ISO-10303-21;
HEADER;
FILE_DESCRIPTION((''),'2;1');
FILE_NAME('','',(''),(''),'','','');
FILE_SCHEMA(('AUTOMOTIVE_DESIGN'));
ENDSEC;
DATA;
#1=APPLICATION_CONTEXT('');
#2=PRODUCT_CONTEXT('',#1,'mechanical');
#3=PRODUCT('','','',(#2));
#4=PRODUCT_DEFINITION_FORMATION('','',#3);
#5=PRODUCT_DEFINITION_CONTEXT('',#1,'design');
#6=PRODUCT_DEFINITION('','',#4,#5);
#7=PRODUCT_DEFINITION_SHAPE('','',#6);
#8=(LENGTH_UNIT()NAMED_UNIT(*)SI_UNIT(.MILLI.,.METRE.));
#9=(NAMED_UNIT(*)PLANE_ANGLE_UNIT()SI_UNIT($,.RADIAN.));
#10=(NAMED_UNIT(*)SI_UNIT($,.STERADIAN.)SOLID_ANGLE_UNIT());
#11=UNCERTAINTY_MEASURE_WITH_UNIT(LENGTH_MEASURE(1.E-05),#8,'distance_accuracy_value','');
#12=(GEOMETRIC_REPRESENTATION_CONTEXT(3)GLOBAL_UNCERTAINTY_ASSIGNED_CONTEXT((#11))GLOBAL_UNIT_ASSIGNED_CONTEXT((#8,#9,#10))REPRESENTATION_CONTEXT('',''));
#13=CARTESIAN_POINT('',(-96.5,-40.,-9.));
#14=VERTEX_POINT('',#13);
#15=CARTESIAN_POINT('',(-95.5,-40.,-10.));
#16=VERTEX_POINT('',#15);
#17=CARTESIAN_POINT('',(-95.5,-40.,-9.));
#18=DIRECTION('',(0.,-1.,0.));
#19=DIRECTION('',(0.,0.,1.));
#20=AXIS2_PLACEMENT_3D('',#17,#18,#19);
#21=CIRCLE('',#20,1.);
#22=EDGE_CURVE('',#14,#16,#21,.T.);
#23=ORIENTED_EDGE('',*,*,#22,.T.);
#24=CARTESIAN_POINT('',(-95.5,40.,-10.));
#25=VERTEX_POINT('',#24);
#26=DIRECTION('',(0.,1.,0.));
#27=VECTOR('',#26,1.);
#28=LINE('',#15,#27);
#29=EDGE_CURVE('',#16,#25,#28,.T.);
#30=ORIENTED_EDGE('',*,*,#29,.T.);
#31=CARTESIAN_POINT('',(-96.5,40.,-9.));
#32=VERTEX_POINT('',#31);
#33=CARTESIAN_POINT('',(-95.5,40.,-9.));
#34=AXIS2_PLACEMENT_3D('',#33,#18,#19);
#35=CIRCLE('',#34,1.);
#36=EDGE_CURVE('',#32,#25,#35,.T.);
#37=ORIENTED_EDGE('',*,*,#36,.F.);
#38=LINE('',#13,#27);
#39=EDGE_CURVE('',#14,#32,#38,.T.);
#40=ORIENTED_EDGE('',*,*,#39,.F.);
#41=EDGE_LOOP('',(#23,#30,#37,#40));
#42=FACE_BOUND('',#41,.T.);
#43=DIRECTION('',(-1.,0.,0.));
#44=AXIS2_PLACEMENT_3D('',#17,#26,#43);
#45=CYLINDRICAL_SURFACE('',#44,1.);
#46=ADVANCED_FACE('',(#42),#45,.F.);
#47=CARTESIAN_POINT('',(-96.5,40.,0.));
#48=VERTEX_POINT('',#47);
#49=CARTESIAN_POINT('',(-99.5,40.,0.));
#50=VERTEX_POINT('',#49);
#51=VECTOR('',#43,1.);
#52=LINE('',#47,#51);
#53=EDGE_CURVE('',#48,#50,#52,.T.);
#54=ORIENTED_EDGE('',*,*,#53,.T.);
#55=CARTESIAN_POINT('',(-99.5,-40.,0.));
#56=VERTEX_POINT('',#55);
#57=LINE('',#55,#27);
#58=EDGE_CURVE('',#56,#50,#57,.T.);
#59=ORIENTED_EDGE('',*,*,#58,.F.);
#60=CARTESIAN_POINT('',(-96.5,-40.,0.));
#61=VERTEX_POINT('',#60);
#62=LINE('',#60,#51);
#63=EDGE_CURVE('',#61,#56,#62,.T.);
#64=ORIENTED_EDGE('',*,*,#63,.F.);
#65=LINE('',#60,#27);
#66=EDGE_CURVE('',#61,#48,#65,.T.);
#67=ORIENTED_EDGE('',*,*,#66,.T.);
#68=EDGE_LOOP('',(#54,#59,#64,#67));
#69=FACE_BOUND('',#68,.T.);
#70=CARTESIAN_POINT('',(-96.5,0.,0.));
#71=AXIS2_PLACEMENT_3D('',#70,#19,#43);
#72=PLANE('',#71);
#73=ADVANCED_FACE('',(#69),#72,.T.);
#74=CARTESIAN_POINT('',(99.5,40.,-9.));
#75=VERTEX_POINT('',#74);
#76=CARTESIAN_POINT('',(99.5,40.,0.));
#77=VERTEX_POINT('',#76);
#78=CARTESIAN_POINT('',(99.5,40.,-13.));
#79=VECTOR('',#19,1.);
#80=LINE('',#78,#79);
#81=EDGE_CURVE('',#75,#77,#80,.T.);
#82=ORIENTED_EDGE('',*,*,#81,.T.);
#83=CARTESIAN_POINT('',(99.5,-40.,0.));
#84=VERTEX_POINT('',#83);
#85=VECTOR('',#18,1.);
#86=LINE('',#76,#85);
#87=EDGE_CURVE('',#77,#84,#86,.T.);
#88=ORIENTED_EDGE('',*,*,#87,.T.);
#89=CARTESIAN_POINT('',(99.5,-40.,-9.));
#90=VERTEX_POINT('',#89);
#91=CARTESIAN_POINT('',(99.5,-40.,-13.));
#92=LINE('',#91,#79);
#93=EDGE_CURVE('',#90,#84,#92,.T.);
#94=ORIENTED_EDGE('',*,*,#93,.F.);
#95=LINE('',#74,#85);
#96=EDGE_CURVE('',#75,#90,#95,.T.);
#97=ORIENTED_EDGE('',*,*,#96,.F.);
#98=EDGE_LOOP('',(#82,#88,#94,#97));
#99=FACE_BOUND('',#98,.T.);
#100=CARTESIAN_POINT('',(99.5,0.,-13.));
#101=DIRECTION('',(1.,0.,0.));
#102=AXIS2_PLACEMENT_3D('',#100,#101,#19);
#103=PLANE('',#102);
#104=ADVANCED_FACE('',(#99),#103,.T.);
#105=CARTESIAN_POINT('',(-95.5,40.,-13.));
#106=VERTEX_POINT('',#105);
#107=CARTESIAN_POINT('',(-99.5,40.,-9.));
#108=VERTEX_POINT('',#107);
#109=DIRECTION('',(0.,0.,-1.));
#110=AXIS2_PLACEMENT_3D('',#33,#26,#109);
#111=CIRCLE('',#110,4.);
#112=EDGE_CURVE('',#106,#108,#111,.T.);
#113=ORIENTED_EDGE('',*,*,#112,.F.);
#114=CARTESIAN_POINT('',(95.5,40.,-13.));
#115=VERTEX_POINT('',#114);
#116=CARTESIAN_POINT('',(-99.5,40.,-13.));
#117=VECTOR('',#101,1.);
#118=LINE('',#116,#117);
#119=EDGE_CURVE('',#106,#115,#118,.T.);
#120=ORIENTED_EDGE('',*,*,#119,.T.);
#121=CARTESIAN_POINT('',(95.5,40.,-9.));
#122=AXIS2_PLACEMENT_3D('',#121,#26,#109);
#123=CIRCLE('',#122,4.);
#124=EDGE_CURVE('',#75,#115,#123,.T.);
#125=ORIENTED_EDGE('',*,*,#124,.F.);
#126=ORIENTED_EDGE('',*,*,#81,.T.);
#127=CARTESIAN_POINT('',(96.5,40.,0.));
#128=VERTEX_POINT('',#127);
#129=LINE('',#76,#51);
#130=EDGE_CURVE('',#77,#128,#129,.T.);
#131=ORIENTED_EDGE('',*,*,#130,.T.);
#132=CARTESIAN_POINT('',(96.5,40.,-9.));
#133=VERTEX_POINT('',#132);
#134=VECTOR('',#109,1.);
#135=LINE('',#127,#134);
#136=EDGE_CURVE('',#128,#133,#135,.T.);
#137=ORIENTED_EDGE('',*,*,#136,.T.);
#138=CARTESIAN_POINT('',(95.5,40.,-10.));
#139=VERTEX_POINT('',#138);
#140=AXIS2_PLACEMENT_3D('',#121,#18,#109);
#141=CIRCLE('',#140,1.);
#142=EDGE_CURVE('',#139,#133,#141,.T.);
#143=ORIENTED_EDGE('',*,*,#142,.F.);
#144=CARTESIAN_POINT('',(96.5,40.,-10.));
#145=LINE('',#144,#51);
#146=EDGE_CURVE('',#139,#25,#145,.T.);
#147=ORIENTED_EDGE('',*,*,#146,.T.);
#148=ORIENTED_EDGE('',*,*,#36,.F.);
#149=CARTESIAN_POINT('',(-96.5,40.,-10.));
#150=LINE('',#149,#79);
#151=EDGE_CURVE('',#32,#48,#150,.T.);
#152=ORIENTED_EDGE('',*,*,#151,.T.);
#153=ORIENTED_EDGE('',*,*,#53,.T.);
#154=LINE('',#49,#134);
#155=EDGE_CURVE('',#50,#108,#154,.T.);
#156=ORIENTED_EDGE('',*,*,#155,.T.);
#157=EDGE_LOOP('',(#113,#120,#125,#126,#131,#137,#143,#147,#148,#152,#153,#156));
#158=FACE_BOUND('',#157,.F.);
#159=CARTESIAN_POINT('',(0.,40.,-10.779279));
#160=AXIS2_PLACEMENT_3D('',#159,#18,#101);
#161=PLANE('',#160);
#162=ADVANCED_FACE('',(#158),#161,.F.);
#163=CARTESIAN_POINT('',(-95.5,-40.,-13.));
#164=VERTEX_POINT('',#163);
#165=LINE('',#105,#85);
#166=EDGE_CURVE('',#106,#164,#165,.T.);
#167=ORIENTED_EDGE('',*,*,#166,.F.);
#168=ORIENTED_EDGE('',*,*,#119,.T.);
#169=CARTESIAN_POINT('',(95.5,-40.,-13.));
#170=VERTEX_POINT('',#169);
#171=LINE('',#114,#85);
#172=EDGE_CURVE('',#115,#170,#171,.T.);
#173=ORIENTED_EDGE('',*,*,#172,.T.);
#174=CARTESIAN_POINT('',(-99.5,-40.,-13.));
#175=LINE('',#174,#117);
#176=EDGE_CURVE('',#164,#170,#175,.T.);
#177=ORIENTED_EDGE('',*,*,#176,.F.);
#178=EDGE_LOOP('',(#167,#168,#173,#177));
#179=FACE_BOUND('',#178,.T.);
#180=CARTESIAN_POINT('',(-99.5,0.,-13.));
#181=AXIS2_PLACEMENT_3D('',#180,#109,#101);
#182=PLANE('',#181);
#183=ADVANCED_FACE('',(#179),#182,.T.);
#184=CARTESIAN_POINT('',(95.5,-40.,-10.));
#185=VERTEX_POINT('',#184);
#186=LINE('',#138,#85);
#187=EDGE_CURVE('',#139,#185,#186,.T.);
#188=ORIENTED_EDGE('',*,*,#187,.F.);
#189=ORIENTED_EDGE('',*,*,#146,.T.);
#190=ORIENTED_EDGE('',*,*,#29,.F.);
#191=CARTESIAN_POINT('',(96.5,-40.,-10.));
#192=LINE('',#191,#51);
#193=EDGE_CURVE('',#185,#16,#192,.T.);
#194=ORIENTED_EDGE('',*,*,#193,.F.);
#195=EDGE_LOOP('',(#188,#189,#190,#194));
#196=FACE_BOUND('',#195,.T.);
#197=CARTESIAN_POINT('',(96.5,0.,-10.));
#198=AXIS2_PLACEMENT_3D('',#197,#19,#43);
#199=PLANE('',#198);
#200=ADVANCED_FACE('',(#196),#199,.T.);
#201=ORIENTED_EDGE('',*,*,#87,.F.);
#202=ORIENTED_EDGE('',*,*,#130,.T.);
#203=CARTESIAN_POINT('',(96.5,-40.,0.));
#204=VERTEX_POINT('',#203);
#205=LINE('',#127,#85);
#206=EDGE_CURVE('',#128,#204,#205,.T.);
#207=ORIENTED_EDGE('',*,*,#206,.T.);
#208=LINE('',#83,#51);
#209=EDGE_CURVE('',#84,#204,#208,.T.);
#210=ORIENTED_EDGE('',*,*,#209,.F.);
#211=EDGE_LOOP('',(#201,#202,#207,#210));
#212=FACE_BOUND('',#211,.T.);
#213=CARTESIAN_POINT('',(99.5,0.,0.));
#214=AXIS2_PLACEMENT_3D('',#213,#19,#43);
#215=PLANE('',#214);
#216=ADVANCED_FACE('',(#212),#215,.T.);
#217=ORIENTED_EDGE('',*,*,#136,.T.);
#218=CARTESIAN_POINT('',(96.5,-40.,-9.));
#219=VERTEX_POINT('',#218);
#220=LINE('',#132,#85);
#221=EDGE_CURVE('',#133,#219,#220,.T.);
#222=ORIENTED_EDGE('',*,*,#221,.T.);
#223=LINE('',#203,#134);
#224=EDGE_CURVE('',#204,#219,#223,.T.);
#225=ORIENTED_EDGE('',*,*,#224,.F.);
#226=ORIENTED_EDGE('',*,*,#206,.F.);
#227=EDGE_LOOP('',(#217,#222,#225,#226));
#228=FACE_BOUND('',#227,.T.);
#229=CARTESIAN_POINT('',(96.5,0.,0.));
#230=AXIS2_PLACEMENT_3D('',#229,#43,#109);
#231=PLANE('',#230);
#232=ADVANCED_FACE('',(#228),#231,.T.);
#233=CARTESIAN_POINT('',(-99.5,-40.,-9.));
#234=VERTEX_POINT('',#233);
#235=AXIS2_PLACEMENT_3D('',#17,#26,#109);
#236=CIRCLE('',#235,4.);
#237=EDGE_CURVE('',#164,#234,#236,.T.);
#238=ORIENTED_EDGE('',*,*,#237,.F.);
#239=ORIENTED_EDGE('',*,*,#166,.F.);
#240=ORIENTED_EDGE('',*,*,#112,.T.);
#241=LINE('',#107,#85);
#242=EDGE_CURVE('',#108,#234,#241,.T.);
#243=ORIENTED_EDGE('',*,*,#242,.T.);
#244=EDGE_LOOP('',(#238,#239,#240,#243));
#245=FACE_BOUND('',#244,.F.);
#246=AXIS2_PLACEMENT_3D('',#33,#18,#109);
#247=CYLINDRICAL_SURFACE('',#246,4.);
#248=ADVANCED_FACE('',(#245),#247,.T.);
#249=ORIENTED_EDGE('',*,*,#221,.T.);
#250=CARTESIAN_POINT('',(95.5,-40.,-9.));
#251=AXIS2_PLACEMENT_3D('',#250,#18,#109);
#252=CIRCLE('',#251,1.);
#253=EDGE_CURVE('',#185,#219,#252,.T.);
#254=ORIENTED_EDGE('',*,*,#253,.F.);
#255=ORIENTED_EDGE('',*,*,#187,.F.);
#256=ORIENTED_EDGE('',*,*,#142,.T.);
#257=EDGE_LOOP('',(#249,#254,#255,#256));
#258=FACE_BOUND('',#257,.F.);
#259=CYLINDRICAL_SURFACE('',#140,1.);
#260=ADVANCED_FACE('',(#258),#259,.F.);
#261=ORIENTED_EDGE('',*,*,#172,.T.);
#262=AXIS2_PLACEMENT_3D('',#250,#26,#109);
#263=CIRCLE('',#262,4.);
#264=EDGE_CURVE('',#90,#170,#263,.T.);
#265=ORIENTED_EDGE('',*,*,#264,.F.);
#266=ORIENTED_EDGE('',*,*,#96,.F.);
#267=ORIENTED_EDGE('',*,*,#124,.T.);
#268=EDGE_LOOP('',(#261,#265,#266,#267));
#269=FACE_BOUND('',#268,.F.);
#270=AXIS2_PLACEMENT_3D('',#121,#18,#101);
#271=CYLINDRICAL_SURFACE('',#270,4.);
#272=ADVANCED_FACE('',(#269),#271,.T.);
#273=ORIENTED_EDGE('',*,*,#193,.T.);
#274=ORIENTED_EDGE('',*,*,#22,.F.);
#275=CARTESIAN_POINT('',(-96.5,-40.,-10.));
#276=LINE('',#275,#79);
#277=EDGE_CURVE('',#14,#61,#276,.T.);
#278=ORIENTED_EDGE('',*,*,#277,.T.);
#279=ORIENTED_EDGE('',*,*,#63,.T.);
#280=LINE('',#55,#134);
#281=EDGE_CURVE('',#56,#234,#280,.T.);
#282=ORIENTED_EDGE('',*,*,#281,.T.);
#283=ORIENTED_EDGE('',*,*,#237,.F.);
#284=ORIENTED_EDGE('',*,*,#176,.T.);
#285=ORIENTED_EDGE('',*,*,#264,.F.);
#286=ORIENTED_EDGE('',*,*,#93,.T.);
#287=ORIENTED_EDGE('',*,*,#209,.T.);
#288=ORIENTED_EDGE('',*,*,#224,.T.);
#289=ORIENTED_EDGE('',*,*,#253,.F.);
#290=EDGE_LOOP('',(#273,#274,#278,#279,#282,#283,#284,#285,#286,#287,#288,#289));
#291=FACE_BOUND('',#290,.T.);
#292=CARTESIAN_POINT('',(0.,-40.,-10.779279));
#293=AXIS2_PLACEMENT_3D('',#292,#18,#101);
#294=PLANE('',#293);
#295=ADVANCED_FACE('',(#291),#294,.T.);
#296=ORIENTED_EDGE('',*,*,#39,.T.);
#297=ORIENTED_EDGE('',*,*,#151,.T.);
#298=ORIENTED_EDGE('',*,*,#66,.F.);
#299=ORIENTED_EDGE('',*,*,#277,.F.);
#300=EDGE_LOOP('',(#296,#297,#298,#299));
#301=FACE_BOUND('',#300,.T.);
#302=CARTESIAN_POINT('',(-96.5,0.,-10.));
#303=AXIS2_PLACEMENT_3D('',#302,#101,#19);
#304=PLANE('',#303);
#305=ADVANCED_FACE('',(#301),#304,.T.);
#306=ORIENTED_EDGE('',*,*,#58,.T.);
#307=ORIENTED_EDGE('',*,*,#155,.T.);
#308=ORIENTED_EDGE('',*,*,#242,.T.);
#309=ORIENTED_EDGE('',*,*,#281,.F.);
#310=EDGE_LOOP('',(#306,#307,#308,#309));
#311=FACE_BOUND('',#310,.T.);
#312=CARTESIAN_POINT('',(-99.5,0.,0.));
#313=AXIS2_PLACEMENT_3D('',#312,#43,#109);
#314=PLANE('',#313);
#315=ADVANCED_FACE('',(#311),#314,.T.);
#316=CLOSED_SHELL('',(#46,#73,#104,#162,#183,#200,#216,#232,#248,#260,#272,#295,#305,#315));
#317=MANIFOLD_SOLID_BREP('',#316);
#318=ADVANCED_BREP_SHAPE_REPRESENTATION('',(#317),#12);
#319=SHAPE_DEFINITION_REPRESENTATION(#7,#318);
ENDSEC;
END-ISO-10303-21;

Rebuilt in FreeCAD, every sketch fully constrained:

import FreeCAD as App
import Part
import Sketcher
from FreeCAD import Vector


def edges_at(feature, points):
    """Names of the edges that pass closest to the given points."""
    edges = feature.Shape.Edges
    near = lambda p: min(range(len(edges)), key=lambda i: edges[i].distToShape(Part.Vertex(*p))[0])
    return sorted({f"Edge{near(p) + 1}" for p in points})

doc = App.newDocument("Part")
body = doc.addObject("PartDesign::Body", "Body")

sketch1 = body.newObject("Sketcher::SketchObject", "Sketch")
sketch1.AttachmentSupport = (doc.getObject("XZ_Plane"), [""])
sketch1.MapMode = "FlatFace"
sketch1.addGeometry(Part.LineSegment(Vector(-99.5, 0, 0), Vector(-99.5, -13, 0)), False)
sketch1.addGeometry(Part.LineSegment(Vector(-99.5, -13, 0), Vector(99.5, -13, 0)), False)
sketch1.addGeometry(Part.LineSegment(Vector(99.5, -13, 0), Vector(99.5, 0, 0)), False)
sketch1.addGeometry(Part.LineSegment(Vector(99.5, 0, 0), Vector(96.5, 0, 0)), False)
sketch1.addGeometry(Part.LineSegment(Vector(96.5, 0, 0), Vector(96.5, -10, 0)), False)
sketch1.addGeometry(Part.LineSegment(Vector(96.5, -10, 0), Vector(-96.5, -10, 0)), False)
sketch1.addGeometry(Part.LineSegment(Vector(-96.5, -10, 0), Vector(-96.5, 0, 0)), False)
sketch1.addGeometry(Part.LineSegment(Vector(-96.5, 0, 0), Vector(-99.5, 0, 0)), False)
sketch1.addConstraint(Sketcher.Constraint("Coincident", 0, 2, 1, 1))
sketch1.addConstraint(Sketcher.Constraint("Coincident", 1, 2, 2, 1))
sketch1.addConstraint(Sketcher.Constraint("Coincident", 2, 2, 3, 1))
sketch1.addConstraint(Sketcher.Constraint("Coincident", 3, 2, 4, 1))
sketch1.addConstraint(Sketcher.Constraint("Coincident", 4, 2, 5, 1))
sketch1.addConstraint(Sketcher.Constraint("Coincident", 5, 2, 6, 1))
sketch1.addConstraint(Sketcher.Constraint("Coincident", 6, 2, 7, 1))
sketch1.addConstraint(Sketcher.Constraint("Coincident", 7, 2, 0, 1))
sketch1.addConstraint(Sketcher.Constraint("Vertical", 0))
sketch1.addConstraint(Sketcher.Constraint("Horizontal", 1))
sketch1.addConstraint(Sketcher.Constraint("Vertical", 2))
sketch1.addConstraint(Sketcher.Constraint("Horizontal", 3))
sketch1.addConstraint(Sketcher.Constraint("Vertical", 4))
sketch1.addConstraint(Sketcher.Constraint("Horizontal", 5))
sketch1.addConstraint(Sketcher.Constraint("Vertical", 6))
sketch1.addConstraint(Sketcher.Constraint("Horizontal", 7))
sketch1.addConstraint(Sketcher.Constraint("Symmetric", 3, 2, 6, 2, -1, 1))
sketch1.addConstraint(Sketcher.Constraint("Symmetric", 2, 2, 7, 2, -2))
sketch1.addConstraint(Sketcher.Constraint("DistanceX", 1, 1, 1, 2, 199.0))
sketch1.addConstraint(Sketcher.Constraint("DistanceX", 3, 2, 3, 1, 3.0))
sketch1.addConstraint(Sketcher.Constraint("DistanceY", 0, 2, 0, 1, 13.0))
sketch1.addConstraint(Sketcher.Constraint("DistanceY", 4, 2, 4, 1, 10.0))
pad1 = body.newObject("PartDesign::Pad", "Pad")
pad1.Profile = sketch1
pad1.Length = 80
pad1.Midplane = True
doc.recompute()

fillet = body.newObject("PartDesign::Fillet", "Fillet")
fillet.Base = (pad1, edges_at(pad1, [(-96.5, 0, -10), (96.5, 0, -10)]))
fillet.Radius = 1
doc.recompute()

fillet2 = body.newObject("PartDesign::Fillet", "Fillet001")
fillet2.Base = (fillet, edges_at(fillet, [(-99.5, 0, -13), (99.5, 0, -13)]))
fillet2.Radius = 4

doc.recompute()
